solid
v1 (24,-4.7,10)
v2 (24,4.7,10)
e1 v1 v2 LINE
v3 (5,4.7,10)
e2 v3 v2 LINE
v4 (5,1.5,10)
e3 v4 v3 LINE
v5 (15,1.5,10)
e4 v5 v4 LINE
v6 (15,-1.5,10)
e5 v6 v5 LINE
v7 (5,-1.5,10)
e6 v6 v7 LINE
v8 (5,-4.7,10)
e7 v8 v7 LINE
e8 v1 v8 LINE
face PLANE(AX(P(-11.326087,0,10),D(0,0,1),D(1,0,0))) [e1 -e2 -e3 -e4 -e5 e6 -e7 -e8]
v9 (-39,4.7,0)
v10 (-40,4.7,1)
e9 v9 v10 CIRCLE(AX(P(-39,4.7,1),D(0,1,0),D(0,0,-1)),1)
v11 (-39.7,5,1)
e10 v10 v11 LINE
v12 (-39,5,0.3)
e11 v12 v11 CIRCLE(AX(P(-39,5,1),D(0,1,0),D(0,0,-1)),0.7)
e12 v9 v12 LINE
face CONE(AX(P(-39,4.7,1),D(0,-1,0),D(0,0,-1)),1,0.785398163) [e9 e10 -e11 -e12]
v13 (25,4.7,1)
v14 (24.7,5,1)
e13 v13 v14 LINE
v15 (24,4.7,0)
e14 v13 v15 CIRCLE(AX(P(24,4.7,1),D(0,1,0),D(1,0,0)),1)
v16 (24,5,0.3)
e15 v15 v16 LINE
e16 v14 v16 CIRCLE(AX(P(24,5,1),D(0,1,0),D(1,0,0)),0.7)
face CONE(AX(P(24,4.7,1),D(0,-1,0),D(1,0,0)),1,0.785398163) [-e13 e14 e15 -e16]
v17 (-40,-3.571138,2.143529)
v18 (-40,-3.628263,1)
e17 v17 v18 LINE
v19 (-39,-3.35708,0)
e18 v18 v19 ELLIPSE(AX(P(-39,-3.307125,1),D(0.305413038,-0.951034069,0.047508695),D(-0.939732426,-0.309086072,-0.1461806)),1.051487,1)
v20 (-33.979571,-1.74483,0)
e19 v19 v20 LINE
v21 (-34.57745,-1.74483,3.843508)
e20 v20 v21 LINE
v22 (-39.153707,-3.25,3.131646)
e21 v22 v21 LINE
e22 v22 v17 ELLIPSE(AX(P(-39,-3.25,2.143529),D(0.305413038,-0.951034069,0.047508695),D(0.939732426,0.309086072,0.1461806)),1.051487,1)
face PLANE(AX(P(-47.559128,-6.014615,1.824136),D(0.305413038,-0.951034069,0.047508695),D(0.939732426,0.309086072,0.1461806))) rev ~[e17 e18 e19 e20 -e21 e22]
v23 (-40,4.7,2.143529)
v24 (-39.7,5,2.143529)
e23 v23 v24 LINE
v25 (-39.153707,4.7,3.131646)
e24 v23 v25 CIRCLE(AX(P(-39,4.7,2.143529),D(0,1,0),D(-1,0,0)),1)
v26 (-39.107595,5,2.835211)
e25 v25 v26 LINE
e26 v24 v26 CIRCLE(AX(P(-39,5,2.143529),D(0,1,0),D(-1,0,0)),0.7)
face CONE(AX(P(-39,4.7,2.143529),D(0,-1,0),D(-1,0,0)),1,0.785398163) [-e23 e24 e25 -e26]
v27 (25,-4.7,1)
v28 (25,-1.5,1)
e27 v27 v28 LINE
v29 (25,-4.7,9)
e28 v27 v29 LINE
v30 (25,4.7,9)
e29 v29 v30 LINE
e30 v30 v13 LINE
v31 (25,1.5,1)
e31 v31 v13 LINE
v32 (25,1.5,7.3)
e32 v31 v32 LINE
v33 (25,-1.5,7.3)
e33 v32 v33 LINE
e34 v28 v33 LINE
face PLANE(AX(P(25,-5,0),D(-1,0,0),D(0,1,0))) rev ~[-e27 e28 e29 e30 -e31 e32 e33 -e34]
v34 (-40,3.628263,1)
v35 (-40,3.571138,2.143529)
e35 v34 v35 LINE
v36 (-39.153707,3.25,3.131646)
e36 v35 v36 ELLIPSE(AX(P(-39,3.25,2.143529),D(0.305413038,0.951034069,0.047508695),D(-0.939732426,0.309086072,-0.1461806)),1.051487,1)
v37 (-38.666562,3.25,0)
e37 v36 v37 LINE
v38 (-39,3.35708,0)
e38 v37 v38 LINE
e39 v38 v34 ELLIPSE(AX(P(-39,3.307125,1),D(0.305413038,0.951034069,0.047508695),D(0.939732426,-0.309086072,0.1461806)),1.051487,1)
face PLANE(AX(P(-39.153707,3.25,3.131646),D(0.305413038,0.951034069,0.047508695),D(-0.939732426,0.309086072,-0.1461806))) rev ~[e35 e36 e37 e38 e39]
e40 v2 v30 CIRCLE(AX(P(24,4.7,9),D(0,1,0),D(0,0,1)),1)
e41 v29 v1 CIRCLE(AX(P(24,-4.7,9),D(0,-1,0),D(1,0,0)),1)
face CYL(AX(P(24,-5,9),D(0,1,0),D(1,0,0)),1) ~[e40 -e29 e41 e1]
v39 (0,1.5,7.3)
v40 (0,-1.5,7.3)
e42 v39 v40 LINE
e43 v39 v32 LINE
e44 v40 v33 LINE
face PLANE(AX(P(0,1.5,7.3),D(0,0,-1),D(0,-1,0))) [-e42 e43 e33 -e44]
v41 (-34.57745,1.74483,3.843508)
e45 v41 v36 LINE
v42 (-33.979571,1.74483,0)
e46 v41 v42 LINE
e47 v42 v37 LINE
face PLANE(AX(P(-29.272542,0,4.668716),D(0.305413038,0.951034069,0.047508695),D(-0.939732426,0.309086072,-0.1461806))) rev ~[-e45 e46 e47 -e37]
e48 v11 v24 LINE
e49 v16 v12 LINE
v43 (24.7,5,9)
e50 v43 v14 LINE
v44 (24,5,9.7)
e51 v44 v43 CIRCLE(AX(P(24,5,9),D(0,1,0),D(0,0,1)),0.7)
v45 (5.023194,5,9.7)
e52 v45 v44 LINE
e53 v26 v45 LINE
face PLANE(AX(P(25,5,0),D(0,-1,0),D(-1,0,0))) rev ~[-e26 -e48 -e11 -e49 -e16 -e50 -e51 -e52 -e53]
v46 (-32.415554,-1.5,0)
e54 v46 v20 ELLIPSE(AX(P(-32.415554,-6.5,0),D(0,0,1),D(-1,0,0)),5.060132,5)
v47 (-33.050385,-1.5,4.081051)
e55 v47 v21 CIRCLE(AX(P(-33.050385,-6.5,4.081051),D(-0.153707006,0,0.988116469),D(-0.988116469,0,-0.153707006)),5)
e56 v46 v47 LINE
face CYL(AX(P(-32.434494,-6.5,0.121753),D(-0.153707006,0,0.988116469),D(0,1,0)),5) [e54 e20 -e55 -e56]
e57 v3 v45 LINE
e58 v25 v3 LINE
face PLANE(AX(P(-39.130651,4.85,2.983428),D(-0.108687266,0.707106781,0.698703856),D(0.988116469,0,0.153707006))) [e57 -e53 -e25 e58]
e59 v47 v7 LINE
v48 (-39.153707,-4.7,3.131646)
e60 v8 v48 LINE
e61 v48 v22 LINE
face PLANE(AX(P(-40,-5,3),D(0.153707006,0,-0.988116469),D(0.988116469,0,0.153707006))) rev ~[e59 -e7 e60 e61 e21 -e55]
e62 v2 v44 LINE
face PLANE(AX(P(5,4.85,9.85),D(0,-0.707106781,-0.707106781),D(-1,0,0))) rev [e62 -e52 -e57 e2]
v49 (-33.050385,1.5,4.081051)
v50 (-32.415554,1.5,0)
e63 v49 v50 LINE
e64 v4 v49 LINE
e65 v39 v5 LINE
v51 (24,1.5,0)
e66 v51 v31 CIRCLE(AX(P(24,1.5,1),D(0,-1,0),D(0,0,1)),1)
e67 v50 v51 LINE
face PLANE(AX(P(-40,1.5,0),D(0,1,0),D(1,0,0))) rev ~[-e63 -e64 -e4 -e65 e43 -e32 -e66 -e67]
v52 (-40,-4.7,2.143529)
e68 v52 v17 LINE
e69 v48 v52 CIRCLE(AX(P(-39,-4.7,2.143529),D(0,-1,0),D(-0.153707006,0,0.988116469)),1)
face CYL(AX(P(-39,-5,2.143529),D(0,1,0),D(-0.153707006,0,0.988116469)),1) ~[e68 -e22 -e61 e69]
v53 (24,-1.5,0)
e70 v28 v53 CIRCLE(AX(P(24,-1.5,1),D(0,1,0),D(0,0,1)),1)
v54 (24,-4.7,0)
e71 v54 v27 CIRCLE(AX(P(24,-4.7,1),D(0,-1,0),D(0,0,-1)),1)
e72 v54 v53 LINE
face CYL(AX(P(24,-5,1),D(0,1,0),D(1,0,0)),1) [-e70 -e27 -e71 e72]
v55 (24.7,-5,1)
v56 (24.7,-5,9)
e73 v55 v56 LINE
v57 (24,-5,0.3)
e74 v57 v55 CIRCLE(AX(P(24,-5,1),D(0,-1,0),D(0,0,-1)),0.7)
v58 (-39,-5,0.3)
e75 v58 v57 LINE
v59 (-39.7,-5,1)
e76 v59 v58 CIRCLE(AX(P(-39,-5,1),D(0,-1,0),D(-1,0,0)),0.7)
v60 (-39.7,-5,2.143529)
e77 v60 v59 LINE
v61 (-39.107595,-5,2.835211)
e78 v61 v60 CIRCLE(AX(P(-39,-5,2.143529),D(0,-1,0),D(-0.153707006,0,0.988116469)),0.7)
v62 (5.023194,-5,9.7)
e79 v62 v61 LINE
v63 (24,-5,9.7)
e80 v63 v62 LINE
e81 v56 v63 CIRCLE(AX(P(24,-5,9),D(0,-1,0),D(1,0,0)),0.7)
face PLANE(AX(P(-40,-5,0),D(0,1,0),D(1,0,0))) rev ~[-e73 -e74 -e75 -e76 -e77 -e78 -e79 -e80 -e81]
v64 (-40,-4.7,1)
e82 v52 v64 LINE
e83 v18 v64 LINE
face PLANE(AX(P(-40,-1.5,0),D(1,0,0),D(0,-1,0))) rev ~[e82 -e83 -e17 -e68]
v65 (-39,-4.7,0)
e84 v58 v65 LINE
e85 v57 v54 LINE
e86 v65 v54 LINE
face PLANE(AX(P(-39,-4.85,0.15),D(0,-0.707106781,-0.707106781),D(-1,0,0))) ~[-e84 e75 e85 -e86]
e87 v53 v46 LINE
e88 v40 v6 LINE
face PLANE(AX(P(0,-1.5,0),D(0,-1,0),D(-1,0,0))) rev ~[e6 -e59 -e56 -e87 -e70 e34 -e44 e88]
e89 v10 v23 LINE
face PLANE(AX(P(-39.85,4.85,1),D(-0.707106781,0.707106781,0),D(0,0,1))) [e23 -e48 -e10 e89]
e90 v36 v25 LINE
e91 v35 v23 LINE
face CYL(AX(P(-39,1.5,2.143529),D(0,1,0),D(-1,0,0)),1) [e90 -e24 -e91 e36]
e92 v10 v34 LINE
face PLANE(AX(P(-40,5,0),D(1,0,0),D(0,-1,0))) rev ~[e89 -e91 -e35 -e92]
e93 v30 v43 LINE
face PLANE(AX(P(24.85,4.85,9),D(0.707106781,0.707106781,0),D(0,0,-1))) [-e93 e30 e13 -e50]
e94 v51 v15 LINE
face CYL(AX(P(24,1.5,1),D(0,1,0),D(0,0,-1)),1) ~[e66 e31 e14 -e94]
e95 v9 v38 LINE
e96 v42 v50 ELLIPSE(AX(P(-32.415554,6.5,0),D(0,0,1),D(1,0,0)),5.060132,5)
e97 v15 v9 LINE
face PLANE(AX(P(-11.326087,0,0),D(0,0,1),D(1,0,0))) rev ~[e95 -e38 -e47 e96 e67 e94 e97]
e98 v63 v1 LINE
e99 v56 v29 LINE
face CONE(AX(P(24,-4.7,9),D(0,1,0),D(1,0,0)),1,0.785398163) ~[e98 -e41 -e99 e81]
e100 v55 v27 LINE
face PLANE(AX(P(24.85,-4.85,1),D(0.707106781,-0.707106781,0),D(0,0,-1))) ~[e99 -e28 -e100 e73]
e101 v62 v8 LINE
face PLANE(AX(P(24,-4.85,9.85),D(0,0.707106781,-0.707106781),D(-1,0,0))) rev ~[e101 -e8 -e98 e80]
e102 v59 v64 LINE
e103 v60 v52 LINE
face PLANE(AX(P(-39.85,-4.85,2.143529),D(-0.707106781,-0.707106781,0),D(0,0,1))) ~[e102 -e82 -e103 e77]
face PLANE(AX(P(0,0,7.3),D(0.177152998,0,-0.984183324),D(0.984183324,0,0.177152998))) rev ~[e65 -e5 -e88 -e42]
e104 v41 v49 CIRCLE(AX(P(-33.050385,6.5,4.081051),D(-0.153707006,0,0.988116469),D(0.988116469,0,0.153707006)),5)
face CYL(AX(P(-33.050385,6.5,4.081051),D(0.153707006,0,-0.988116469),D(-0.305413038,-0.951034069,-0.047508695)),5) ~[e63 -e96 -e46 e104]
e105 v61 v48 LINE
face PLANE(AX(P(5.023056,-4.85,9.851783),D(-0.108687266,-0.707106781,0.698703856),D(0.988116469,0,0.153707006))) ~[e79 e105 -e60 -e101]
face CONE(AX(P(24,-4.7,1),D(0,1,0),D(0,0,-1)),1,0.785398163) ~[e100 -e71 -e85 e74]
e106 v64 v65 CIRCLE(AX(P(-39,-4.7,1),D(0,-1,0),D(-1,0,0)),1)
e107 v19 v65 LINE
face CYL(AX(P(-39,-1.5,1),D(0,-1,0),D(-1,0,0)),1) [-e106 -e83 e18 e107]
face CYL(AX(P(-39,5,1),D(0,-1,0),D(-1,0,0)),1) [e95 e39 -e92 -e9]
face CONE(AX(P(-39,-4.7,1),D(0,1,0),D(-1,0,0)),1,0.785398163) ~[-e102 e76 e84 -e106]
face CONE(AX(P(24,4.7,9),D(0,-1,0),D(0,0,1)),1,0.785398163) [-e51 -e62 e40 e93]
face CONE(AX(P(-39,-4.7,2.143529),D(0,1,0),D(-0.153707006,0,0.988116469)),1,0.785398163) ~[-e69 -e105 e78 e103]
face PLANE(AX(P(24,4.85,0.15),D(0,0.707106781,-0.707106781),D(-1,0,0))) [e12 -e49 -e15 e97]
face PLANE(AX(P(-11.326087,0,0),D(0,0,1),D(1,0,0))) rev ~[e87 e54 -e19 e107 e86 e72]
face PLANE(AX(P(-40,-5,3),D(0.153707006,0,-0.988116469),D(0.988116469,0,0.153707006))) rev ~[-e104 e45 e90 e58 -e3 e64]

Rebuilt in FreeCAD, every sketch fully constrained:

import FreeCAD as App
import Part
import Sketcher
Q = App.Units.Quantity


def edges_at(feature, points):
    """Names of the edges that pass closest to the given points."""
    edges = feature.Shape.Edges
    near = lambda p: min(range(len(edges)), key=lambda i: edges[i].distToShape(Part.Vertex(*p))[0])
    return sorted({f"Edge{near(p) + 1}" for p in points})


def add_polygon(sketch, points):
    """Adds a closed chain of lines whose ends are joined by coincident constraints."""
    first, n = sketch.GeometryCount, len(points)
    for a, b in zip(points, points[1:] + points[:1]):
        sketch.addGeometry(Part.LineSegment(App.Vector(*a, 0), App.Vector(*b, 0)), False)
    for i in range(n):
        sketch.addConstraint(Sketcher.Constraint("Coincident", first + i, 2, first + (i + 1) % n, 1))

doc = App.newDocument("Part")
params = doc.addObject("Spreadsheet::Sheet", "Params")
for row, (alias, value) in enumerate([
    ("sketch1_width", "40 mm"),
    ("sketch1_width2", "65 mm"),
    ("sketch1_height", "3 mm"),
    ("sketch1_height2", "10 mm"),
    ("pad1_length", "10 mm"),
    ("sketch2_width", "3 mm"),
    ("sketch2_height", "7.3 mm"),
    ("sketch3_width", "45 mm"),
    ("sketch3_height", "7 mm"),
    ("fillet_radius", "1 mm"),
    ("sketch4_width", "15 mm"),
    ("sketch4_height", "2.7 mm"),
    ("pocket3_length", "3 mm"),
    ("pocket4_length", "25 mm"),
    ("fillet2_radius", "5 mm"),
    ("chamfer_size", "0.3 mm"),
], start=1):
    params.set(f"A{row}", alias)
    params.set(f"B{row}", "=" + value)
    params.setAlias(f"B{row}", alias)

body = doc.addObject("PartDesign::Body", "Body")

# Sketch on XY plane
sketch1 = body.newObject("Sketcher::SketchObject", "Sketch")
sketch1.AttachmentSupport = (doc.getObject("XY_Plane"), [""])
sketch1.MapMode = "FlatFace"
add_polygon(sketch1, [(-40, 5), (-40, 1.5), (0, 1.5), (0, -1.5), (-40, -1.5), (-40, -5), (25, -5), (25, 5)])  # lines 0-7
sketch1.addConstraint([
    Sketcher.Constraint("Vertical", 0),
    Sketcher.Constraint("Horizontal", 1),
    Sketcher.Constraint("Vertical", 2),
    Sketcher.Constraint("Horizontal", 3),
    Sketcher.Constraint("Vertical", 4),
    Sketcher.Constraint("Horizontal", 5),
    Sketcher.Constraint("Vertical", 6),
    Sketcher.Constraint("Horizontal", 7),
    Sketcher.Constraint("Symmetric", 1, 2, 2, 2, -1, 1),
    Sketcher.Constraint("Symmetric", 4, 2, 7, 2, -1),
    Sketcher.Constraint("DistanceX", 1, 1, 1, 2, Q("40 mm")),
    Sketcher.Constraint("DistanceX", 5, 1, 5, 2, Q("65 mm")),
    Sketcher.Constraint("DistanceY", 2, 2, 2, 1, Q("3 mm")),
    Sketcher.Constraint("DistanceY", 6, 1, 6, 2, Q("10 mm")),
])
sketch1.setExpression("Constraints[18]", "Params.sketch1_width")
sketch1.setExpression("Constraints[19]", "Params.sketch1_width2")
sketch1.setExpression("Constraints[20]", "Params.sketch1_height")
sketch1.setExpression("Constraints[21]", "Params.sketch1_height2")
pad1 = body.newObject("PartDesign::Pad", "Pad")
pad1.Profile = sketch1
pad1.setExpression("Length", "Params.pad1_length")

# Sketch on YZ plane
sketch2 = body.newObject("Sketcher::SketchObject", "Sketch001")
sketch2.AttachmentSupport = (doc.getObject("YZ_Plane"), [""])
sketch2.MapMode = "FlatFace"
add_polygon(sketch2, [(1.5, 7.3), (1.5, 0), (-1.5, 0), (-1.5, 7.3)])  # lines 0-3
sketch2.addConstraint([
    Sketcher.Constraint("Vertical", 0),
    Sketcher.Constraint("Horizontal", 1),
    Sketcher.Constraint("Vertical", 2),
    Sketcher.Constraint("Horizontal", 3),
    Sketcher.Constraint("Symmetric", 0, 2, 1, 2, -1, 1),
    Sketcher.Constraint("DistanceX", 1, 2, 1, 1, Q("3 mm")),
    Sketcher.Constraint("DistanceY", 0, 2, 0, 1, Q("7.3 mm")),
])
sketch2.setExpression("Constraints[9]", "Params.sketch2_width")
sketch2.setExpression("Constraints[10]", "Params.sketch2_height")
pocket1 = body.newObject("PartDesign::Pocket", "Pocket")
pocket1.Profile = sketch2
pocket1.Type = "ThroughAll"
pocket1.Reversed = True

# Sketch on XZ plane
sketch3 = body.newObject("Sketcher::SketchObject", "Sketch002")
sketch3.AttachmentSupport = (doc.getObject("XZ_Plane"), [""])
sketch3.MapMode = "FlatFace"
sketch3.AttachmentOffset = App.Placement(App.Vector(0, 0, 5), App.Rotation())
add_polygon(sketch3, [(-40, 10), (-40, 3), (5, 10)])  # lines 0-2
sketch3.addConstraint([
    Sketcher.Constraint("Vertical", 0),
    Sketcher.Constraint("Horizontal", 2),
    Sketcher.Constraint("DistanceX", 2, 2, 2, 1, Q("45 mm")),
    Sketcher.Constraint("DistanceY", 0, 2, 0, 1, Q("7 mm")),
    Sketcher.Constraint("DistanceX", 0, 2, -1, 1, Q("40 mm")),
    Sketcher.Constraint("DistanceY", -1, 1, 0, 2, Q("3 mm")),
])
sketch3.setExpression("Constraints[5]", "Params.sketch3_width")
sketch3.setExpression("Constraints[6]", "Params.sketch3_height")
pocket2 = body.newObject("PartDesign::Pocket", "Pocket001")
pocket2.Profile = sketch3
pocket2.Type = "ThroughAll"
doc.recompute()

fillet = body.newObject("PartDesign::Fillet", "Fillet")
fillet.Base = (pocket2, edges_at(pocket2, [
    (25, -3.25, 0),
    (25, 3.25, 0),
    (-40, -3.25, 0),
    (-40, 3.25, 0),
    (-40, -3.25, 3),
    (-40, 3.25, 3),
    (25, 0, 10),
]))
fillet.setExpression("Radius", "Params.fillet_radius")

# Sketch on XZ plane
sketch4 = body.newObject("Sketcher::SketchObject", "Sketch003")
sketch4.AttachmentSupport = (doc.getObject("XZ_Plane"), [""])
sketch4.MapMode = "FlatFace"
add_polygon(sketch4, [(0, 10), (0, 7.3), (15, 10)])  # lines 0-2
sketch4.addConstraint([
    Sketcher.Constraint("Vertical", 0),
    Sketcher.Constraint("Horizontal", 2),
    Sketcher.Constraint("PointOnObject", 0, 2, -2),
    Sketcher.Constraint("DistanceX", 2, 2, 2, 1, Q("15 mm")),
    Sketcher.Constraint("DistanceY", 0, 2, 0, 1, Q("2.7 mm")),
    Sketcher.Constraint("DistanceY", -1, 1, 1, 2, Q("10 mm")),
])
sketch4.setExpression("Constraints[6]", "Params.sketch4_width")
sketch4.setExpression("Constraints[7]", "Params.sketch4_height")
pocket3 = body.newObject("PartDesign::Pocket", "Pocket002")
pocket3.Profile = sketch4
pocket3.setExpression("Length", "Params.pocket3_length")
pocket3.Midplane = True

# Sketch on an angled plane
sketch5 = body.newObject("Sketcher::SketchObject", "Sketch004")
sketch5.Placement = App.Placement(App.Vector(-1.400675, 0, 9.004339), App.Rotation(App.Vector(0.988116469, 0, 0.153707006), App.Vector(0, 1, 0), App.Vector(-0.153707006, 0, 0.988116469), "ZXY"))
add_polygon(sketch5, [(-28, 0), (-38, 3), (-47, 6), (-47, -6)])  # lines 0-3
sketch5.addConstraint([
    Sketcher.Constraint("PointOnObject", 3, 2, -1),
    Sketcher.Constraint("Parallel", 0, 1),
    Sketcher.Constraint("DistanceX", 0, 2, 3, 2, Q("10 mm")),
    Sketcher.Constraint("DistanceY", -1, 1, 0, 2, Q("3.25 mm")),
    Sketcher.Constraint("DistanceX", 1, 2, 0, 2, Q("8.969701 mm")),
    Sketcher.Constraint("DistanceX", 1, 2, -1, 1, Q("47.176768 mm")),
    Sketcher.Constraint("DistanceY", 2, 2, 1, 2, Q("12.179768 mm")),
    Sketcher.Constraint("DistanceX", 2, 2, 0, 2, Q("8.506508 mm")),
])
pocket4 = body.newObject("PartDesign::Pocket", "Pocket003")
pocket4.Profile = sketch5
pocket4.setExpression("Length", "Params.pocket4_length")
doc.recompute()

fillet2 = body.newObject("PartDesign::Fillet", "Fillet001")
fillet2.Base = (pocket4, edges_at(pocket4, [(-33.525, 1.5, 1.98), (-33.525, -1.5, 1.98)]))
fillet2.setExpression("Radius", "Params.fillet2_radius")
doc.recompute()

chamfer = body.newObject("PartDesign::Chamfer", "Chamfer")
chamfer.Base = (fillet2, edges_at(fillet2, [
    (-7.5, 5, 0),
    (24.707, 5, 0.293),
    (-39.707, 5, 0.293),
    (25, 5, 5),
    (-40, 5, 1.572),
    (24.707, 5, 9.707),
    (-39.76, 5, 2.794),
    (14.5, 5, 10),
    (-17.077, 5, 6.566),
    (-7.5, -5, 0),
    (-39.707, -5, 0.293),
    (24.707, -5, 0.293),
    (-40, -5, 1.572),
    (25, -5, 5),
    (-39.76, -5, 2.794),
    (24.707, -5, 9.707),
    (-17.077, -5, 6.566),
    (14.5, -5, 10),
]))
chamfer.setExpression("Size", "Params.chamfer_size")

doc.recompute()
